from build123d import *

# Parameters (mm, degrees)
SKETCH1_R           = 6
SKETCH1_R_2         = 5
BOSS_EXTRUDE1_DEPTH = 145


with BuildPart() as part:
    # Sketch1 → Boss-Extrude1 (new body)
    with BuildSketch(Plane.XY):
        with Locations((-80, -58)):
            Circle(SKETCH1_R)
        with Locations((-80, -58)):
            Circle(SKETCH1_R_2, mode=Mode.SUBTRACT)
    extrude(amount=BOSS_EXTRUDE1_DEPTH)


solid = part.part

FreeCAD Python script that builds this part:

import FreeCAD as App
import Part
import Sketcher
Q = App.Units.Quantity

doc = App.newDocument("Part")
body = doc.addObject("PartDesign::Body", "Body")

sketch1 = body.newObject("Sketcher::SketchObject", "Sketch")
sketch1.AttachmentSupport = (doc.getObject("XY_Plane"), [""])
sketch1.MapMode = "FlatFace"
sketch1.addGeometry([
    Part.Circle(App.Vector(-80, -58, 0), App.Vector(0, 0, 1), 6),
    Part.Circle(App.Vector(-80, -58, 0), App.Vector(0, 0, 1), 5),
], False)
sketch1.addConstraint([
    Sketcher.Constraint("Coincident", 1, 3, 0, 3),
    Sketcher.Constraint("Diameter", 0, Q("12 mm")),
    Sketcher.Constraint("Diameter", 1, Q("10 mm")),
    Sketcher.Constraint("DistanceX", 0, 3, -1, 1, Q("80 mm")),
    Sketcher.Constraint("DistanceY", 0, 3, -1, 1, Q("58 mm")),
])
pad1 = body.newObject("PartDesign::Pad", "Pad")
pad1.Profile = sketch1
pad1.Length = 145

doc.recompute()
